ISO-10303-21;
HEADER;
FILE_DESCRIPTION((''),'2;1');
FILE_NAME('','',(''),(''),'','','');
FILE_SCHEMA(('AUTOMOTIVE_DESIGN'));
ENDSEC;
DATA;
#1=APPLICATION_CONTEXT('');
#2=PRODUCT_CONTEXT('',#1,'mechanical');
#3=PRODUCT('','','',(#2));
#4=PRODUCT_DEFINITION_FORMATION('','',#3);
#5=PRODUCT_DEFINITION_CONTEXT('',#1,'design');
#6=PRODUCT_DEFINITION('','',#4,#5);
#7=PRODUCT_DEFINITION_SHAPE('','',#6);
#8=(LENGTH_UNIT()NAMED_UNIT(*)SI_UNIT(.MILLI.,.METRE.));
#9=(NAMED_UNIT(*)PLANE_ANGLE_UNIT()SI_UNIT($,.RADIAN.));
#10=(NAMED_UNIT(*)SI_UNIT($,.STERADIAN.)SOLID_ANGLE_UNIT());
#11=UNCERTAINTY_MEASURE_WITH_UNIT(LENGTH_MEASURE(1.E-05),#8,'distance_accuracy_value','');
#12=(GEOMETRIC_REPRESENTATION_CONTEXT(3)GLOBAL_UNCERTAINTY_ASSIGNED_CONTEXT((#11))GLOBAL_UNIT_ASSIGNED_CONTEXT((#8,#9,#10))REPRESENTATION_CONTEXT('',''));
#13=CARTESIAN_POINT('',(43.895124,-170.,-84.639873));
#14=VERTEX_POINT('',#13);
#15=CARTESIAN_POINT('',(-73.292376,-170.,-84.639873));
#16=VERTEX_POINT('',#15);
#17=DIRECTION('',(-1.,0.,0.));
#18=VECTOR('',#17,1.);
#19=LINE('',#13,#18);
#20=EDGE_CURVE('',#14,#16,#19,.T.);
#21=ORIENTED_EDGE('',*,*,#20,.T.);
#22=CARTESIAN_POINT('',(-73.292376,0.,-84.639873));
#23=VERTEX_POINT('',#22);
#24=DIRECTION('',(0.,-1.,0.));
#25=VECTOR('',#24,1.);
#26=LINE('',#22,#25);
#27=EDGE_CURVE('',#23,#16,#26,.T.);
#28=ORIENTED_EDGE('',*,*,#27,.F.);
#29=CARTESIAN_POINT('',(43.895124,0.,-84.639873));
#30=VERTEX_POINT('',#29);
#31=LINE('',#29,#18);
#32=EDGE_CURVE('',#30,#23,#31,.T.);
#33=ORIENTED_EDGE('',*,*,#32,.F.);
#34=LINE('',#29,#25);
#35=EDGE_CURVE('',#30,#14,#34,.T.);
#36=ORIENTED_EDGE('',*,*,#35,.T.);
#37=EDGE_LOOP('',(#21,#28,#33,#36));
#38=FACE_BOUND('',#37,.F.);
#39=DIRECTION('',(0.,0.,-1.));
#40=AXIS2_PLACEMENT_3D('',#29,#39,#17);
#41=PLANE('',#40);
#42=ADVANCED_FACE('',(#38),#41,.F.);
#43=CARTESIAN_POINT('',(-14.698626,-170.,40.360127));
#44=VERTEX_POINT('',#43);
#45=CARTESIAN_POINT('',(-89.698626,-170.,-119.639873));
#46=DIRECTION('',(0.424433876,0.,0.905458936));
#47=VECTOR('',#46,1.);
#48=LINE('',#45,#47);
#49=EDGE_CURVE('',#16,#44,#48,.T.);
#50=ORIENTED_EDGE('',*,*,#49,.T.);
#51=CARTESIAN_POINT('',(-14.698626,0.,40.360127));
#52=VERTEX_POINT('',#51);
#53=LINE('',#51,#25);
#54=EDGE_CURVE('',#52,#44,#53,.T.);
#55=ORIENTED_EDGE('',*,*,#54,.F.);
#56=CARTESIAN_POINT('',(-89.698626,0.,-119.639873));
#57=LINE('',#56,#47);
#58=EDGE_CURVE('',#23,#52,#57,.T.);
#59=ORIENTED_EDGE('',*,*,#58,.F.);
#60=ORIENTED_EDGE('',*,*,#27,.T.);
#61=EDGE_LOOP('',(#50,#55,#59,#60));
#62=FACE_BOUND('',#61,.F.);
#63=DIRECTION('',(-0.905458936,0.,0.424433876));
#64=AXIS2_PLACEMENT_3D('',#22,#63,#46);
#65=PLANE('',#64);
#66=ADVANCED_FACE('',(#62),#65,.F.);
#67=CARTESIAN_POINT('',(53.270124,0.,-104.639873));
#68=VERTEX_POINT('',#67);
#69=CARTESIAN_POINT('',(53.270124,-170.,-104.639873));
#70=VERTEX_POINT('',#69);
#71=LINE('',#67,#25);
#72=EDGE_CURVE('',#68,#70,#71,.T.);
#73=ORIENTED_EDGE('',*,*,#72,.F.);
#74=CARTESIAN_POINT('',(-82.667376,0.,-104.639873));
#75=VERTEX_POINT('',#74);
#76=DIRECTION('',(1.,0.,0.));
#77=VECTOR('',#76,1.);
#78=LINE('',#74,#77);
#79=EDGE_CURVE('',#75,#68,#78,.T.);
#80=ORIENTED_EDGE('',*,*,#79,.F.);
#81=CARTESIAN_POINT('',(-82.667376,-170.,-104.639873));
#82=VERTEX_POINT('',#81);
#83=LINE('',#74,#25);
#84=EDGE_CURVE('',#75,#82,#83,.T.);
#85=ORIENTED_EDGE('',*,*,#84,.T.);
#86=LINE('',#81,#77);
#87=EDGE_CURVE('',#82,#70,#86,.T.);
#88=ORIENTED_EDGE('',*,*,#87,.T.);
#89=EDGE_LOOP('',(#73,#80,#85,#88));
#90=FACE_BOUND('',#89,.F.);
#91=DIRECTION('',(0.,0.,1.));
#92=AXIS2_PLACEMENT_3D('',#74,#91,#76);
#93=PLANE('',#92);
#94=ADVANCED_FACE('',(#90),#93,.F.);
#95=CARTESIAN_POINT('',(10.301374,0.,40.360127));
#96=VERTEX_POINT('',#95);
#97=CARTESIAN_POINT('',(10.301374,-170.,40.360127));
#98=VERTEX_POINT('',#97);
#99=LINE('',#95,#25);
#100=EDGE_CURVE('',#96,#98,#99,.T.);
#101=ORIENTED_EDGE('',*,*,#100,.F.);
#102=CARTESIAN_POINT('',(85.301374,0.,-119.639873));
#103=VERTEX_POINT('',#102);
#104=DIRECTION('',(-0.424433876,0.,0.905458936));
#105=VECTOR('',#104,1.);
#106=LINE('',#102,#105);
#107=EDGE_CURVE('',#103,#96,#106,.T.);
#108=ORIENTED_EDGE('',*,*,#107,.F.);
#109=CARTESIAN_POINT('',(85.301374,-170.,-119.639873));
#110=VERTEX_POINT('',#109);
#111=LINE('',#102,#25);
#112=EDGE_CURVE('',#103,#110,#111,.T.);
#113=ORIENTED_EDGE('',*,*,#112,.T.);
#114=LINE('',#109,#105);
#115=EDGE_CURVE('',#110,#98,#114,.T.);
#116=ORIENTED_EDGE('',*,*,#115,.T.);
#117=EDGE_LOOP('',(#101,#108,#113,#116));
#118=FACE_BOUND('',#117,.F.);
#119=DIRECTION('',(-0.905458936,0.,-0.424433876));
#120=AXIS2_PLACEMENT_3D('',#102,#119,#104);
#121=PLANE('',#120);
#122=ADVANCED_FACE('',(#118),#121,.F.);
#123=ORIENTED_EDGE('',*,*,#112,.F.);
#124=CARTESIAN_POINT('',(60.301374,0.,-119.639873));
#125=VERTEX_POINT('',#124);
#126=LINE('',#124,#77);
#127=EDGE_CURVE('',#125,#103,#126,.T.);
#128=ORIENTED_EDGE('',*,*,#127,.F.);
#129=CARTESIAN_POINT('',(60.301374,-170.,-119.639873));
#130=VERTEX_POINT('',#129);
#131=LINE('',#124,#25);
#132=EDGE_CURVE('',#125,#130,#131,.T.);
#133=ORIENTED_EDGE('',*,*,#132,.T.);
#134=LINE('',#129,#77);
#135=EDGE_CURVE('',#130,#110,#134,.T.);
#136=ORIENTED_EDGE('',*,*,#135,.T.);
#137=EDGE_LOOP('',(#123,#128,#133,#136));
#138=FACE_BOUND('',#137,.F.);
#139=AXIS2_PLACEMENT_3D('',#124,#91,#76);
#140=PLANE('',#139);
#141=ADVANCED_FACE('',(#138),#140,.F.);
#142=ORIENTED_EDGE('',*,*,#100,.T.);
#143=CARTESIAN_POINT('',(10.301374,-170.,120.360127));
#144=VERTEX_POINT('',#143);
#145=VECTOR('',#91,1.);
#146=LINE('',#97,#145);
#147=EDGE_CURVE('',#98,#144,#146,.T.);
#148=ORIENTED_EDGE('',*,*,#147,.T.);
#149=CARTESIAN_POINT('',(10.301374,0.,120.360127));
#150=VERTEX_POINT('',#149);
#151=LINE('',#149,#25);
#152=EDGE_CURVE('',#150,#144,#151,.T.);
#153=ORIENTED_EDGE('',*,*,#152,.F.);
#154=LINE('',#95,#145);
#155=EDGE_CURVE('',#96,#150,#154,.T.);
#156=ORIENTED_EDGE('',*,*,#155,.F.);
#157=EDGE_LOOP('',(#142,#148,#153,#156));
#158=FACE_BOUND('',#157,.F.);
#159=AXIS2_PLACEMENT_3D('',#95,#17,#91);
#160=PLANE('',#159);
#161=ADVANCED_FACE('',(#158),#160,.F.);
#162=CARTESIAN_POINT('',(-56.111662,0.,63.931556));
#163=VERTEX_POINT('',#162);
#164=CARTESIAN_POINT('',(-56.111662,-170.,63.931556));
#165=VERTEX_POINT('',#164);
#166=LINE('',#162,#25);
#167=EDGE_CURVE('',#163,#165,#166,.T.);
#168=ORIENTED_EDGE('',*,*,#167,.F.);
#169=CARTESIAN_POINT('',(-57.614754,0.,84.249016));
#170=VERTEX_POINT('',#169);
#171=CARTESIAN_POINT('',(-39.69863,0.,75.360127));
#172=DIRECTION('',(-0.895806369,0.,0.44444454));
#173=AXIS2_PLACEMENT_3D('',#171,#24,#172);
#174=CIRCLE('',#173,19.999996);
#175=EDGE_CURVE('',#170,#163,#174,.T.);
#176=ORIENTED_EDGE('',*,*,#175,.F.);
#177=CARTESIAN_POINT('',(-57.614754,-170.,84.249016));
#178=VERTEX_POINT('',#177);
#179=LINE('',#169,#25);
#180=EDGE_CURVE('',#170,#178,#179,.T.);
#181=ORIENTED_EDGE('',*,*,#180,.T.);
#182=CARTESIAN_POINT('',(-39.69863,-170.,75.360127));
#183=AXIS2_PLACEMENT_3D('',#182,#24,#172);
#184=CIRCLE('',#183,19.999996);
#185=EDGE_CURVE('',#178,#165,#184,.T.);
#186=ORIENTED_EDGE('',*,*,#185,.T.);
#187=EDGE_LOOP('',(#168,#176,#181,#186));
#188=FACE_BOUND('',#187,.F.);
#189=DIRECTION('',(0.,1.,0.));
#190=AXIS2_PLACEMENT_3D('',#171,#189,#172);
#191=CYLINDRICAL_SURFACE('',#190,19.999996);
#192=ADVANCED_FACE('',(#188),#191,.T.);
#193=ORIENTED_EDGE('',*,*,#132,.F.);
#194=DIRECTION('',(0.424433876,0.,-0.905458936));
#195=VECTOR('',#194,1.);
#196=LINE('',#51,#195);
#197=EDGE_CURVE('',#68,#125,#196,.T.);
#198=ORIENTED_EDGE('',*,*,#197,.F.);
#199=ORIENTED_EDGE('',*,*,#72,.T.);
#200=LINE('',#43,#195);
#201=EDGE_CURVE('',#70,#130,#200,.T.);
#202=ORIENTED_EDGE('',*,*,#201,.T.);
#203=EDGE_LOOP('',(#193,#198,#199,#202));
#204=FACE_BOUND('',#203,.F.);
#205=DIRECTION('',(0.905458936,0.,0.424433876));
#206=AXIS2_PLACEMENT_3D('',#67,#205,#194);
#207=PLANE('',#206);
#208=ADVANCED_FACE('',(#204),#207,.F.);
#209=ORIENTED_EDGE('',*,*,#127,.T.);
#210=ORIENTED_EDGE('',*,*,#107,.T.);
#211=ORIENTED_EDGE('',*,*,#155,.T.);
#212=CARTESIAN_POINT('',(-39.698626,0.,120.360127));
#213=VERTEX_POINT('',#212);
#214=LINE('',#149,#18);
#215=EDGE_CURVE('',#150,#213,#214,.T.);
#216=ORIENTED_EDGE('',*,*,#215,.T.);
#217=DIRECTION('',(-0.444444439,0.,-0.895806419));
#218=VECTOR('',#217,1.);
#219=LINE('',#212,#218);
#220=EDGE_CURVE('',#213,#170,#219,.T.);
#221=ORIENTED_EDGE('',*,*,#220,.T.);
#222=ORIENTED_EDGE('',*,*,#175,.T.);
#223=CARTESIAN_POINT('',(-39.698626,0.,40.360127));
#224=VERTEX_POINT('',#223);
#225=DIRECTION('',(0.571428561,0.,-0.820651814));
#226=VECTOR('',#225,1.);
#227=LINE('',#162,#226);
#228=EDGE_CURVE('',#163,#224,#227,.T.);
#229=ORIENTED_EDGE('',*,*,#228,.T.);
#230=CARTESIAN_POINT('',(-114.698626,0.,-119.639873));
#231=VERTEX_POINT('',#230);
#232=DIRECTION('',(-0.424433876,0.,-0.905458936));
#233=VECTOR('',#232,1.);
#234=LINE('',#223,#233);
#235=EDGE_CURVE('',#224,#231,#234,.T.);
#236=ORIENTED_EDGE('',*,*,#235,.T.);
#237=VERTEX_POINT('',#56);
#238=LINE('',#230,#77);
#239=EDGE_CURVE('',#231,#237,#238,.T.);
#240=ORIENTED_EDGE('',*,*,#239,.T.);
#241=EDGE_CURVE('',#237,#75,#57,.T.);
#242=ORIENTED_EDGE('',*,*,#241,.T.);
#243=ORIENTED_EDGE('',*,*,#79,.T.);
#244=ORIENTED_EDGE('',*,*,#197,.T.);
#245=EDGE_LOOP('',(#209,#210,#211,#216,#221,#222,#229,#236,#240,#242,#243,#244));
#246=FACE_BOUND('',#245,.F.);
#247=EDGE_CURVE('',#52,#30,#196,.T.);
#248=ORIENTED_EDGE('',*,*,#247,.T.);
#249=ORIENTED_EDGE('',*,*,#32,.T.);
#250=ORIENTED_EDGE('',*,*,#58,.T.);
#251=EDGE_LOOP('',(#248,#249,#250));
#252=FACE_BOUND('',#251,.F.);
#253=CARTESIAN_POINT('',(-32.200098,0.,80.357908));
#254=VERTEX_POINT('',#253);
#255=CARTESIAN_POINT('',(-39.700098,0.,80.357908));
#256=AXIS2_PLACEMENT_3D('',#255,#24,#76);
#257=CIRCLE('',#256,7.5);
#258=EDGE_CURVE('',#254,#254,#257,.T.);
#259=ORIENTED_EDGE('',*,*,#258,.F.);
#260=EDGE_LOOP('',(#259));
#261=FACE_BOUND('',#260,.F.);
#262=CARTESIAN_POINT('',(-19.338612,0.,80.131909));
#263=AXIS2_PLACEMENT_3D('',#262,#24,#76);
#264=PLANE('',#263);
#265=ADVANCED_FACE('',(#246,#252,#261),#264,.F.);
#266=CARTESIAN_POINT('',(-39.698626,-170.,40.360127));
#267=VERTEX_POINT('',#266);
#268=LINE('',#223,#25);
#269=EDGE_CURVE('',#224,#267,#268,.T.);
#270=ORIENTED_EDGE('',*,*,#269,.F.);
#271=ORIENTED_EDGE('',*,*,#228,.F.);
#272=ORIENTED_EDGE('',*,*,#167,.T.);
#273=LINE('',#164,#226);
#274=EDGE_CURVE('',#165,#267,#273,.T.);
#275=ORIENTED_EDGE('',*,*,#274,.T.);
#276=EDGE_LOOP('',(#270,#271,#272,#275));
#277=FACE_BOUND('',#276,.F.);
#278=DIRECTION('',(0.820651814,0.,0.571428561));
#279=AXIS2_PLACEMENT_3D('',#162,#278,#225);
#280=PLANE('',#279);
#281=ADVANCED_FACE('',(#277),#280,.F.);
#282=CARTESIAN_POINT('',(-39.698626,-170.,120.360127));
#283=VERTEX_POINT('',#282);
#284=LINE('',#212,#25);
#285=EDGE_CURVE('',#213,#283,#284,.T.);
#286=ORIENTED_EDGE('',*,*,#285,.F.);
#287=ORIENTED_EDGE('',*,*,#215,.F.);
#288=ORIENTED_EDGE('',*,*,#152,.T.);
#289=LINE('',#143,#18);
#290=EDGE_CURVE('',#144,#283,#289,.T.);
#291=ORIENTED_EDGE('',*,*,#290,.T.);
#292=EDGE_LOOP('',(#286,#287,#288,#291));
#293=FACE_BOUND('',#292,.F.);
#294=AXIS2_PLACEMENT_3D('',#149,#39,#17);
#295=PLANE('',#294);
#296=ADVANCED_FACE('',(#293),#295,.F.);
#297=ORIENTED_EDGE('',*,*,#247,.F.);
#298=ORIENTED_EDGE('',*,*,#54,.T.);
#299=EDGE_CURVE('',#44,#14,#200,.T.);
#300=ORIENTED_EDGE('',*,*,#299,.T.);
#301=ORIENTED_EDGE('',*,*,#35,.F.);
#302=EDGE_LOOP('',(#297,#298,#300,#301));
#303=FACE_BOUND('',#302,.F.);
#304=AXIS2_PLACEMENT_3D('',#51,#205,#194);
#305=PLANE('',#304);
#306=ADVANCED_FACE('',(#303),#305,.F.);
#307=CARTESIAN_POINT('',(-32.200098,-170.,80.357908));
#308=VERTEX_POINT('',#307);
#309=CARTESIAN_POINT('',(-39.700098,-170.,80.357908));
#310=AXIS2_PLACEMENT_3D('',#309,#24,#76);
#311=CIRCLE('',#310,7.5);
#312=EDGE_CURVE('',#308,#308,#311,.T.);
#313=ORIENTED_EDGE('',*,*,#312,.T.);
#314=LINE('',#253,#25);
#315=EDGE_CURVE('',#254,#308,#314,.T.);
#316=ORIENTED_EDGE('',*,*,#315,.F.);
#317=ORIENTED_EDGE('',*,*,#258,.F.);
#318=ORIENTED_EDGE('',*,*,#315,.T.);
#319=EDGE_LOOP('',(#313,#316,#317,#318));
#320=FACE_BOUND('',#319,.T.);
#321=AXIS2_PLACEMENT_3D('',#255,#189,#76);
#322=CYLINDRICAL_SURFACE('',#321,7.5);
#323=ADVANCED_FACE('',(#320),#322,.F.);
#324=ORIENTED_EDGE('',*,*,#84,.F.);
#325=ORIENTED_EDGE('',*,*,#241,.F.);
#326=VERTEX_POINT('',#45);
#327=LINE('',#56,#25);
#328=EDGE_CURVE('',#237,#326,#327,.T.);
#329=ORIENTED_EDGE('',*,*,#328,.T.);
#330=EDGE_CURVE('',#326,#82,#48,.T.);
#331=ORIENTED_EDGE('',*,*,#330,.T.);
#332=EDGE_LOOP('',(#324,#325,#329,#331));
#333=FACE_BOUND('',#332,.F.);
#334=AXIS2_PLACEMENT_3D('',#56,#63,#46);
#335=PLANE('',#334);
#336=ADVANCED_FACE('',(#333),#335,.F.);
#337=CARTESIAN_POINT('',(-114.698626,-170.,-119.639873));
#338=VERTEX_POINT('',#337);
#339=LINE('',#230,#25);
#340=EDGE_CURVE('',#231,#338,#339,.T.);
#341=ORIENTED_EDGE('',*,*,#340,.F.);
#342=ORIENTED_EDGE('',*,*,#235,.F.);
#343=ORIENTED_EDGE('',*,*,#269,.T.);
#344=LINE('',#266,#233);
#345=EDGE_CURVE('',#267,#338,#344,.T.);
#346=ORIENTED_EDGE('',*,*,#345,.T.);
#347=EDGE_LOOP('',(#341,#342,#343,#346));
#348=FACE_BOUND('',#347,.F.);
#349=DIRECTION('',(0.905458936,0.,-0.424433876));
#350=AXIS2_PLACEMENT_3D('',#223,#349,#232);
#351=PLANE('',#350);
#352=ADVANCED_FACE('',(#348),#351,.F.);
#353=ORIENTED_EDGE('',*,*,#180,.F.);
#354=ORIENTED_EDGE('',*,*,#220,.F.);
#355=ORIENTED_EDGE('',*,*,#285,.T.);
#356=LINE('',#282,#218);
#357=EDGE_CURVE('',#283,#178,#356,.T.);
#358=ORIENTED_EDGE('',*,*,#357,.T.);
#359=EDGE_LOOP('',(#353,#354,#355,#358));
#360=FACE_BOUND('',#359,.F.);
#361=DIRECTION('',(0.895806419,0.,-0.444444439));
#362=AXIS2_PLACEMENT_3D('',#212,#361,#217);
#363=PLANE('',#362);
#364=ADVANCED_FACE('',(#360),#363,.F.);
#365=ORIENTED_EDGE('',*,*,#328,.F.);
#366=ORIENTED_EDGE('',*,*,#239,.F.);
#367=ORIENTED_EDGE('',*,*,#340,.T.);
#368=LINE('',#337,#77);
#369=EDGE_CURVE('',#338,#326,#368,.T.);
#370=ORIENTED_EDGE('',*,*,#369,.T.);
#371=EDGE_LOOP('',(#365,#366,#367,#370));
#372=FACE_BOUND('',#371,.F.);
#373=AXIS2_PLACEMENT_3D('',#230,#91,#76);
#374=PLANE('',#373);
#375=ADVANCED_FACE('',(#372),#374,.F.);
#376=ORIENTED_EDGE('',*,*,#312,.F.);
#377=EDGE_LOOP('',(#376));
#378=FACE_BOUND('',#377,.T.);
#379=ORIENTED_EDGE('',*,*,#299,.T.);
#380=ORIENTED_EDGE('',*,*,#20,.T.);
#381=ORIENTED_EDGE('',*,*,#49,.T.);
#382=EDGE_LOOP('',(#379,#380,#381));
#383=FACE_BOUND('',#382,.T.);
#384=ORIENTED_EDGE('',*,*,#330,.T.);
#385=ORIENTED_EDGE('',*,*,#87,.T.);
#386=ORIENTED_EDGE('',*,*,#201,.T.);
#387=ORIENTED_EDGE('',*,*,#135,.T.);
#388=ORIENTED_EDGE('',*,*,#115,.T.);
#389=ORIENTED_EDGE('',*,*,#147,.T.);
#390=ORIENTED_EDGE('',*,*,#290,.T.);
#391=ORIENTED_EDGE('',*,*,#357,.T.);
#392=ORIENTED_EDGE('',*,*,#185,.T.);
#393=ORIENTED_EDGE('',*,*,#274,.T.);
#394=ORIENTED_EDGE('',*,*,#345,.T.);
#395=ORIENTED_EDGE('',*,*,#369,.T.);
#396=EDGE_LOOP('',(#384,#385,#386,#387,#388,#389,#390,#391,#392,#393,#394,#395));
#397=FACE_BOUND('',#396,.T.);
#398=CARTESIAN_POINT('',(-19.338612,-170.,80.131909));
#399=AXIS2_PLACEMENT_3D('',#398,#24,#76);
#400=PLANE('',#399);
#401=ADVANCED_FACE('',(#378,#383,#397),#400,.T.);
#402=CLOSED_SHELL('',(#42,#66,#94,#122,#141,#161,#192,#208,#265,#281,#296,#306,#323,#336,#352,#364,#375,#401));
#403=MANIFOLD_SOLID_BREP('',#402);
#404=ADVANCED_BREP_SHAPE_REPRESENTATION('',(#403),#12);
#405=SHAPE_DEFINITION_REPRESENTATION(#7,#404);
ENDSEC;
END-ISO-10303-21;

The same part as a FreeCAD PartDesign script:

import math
import FreeCAD as App
import Part
import Sketcher

V = App.Vector

doc = App.newDocument("Part")
body = doc.addObject("PartDesign::Body", "Body")

sketch1 = body.newObject("Sketcher::SketchObject", "Sketch")
sketch1.AttachmentSupport = (doc.getObject("XZ_Plane"), [""])
sketch1.MapMode = "FlatFace"
sketch1.addGeometry(Part.LineSegment(V(10, 40, 0), V(10, 120, 0)), False)
sketch1.addGeometry(Part.LineSegment(V(10, 120, 0), V(-40, 120, 0)), False)
sketch1.addGeometry(Part.LineSegment(V(-40, 120, 0), V(-58, 84, 0)), False)
sketch1.addGeometry(Part.ArcOfCircle(Part.Circle(V(-40, 75, 0), V(0, 0, 1), 20), math.radians(154), math.radians(215)), False)
sketch1.addGeometry(Part.LineSegment(V(-56, 64, 0), V(-40, 40, 0)), False)
sketch1.addGeometry(Part.LineSegment(V(-40, 40, 0), V(-115, -120, 0)), False)
sketch1.addGeometry(Part.LineSegment(V(-115, -120, 0), V(-90, -120, 0)), False)
sketch1.addGeometry(Part.LineSegment(V(-90, -120, 0), V(-83, -105, 0)), False)
sketch1.addGeometry(Part.LineSegment(V(-83, -105, 0), V(53, -105, 0)), False)
sketch1.addGeometry(Part.LineSegment(V(53, -105, 0), V(60, -120, 0)), False)
sketch1.addGeometry(Part.LineSegment(V(60, -120, 0), V(85, -120, 0)), False)
sketch1.addGeometry(Part.LineSegment(V(85, -120, 0), V(10, 40, 0)), False)
sketch1.addGeometry(Part.LineSegment(V(-73, -85, 0), V(-15, 40, 0)), False)
sketch1.addGeometry(Part.LineSegment(V(-15, 40, 0), V(44, -85, 0)), False)
sketch1.addGeometry(Part.LineSegment(V(44, -85, 0), V(-73, -85, 0)), False)
sketch1.addGeometry(Part.Circle(V(-40, 80, 0), V(0, 0, 1), 8), False)
sketch1.addConstraint(Sketcher.Constraint("Coincident", 0, 2, 1, 1))
sketch1.addConstraint(Sketcher.Constraint("Coincident", 1, 2, 2, 1))
sketch1.addConstraint(Sketcher.Constraint("Tangent", 2, 2, 3, 1))
sketch1.addConstraint(Sketcher.Constraint("Tangent", 3, 2, 4, 1))
sketch1.addConstraint(Sketcher.Constraint("Coincident", 4, 2, 5, 1))
sketch1.addConstraint(Sketcher.Constraint("Coincident", 5, 2, 6, 1))
sketch1.addConstraint(Sketcher.Constraint("Coincident", 6, 2, 7, 1))
sketch1.addConstraint(Sketcher.Constraint("Coincident", 7, 2, 8, 1))
sketch1.addConstraint(Sketcher.Constraint("Coincident", 8, 2, 9, 1))
sketch1.addConstraint(Sketcher.Constraint("Coincident", 9, 2, 10, 1))
sketch1.addConstraint(Sketcher.Constraint("Coincident", 10, 2, 11, 1))
sketch1.addConstraint(Sketcher.Constraint("Coincident", 11, 2, 0, 1))
sketch1.addConstraint(Sketcher.Constraint("Coincident", 12, 2, 13, 1))
sketch1.addConstraint(Sketcher.Constraint("Coincident", 13, 2, 14, 1))
sketch1.addConstraint(Sketcher.Constraint("Coincident", 14, 2, 12, 1))
sketch1.addConstraint(Sketcher.Constraint("Vertical", 0))
sketch1.addConstraint(Sketcher.Constraint("Horizontal", 1))
sketch1.addConstraint(Sketcher.Constraint("Horizontal", 6))
sketch1.addConstraint(Sketcher.Constraint("Horizontal", 8))
sketch1.addConstraint(Sketcher.Constraint("Horizontal", 10))
sketch1.addConstraint(Sketcher.Constraint("Horizontal", 14))
sketch1.addConstraint(Sketcher.Constraint("Parallel", 5, 7))
sketch1.addConstraint(Sketcher.Constraint("Parallel", 9, 11))
sketch1.addConstraint(Sketcher.Constraint("Parallel", 7, 12))
sketch1.addConstraint(Sketcher.Constraint("Parallel", 11, 13))
sketch1.addConstraint(Sketcher.Constraint("Horizontal", 6, 2, 9, 2))
sketch1.addConstraint(Sketcher.Constraint("Horizontal", 4, 2, 11, 2))
sketch1.addConstraint(Sketcher.Constraint("Horizontal", 11, 2, 12, 2))
sketch1.addConstraint(Sketcher.Constraint("Vertical", 1, 2, 4, 2))
sketch1.addConstraint(Sketcher.Constraint("Equal", 6, 10))
sketch1.addConstraint(Sketcher.Constraint("Equal", 7, 9))
sketch1.addConstraint(Sketcher.Constraint("Diameter", 15, 15.0))
sketch1.addConstraint(Sketcher.Constraint("DistanceX", 1, 2, 1, 1, 50.0))
sketch1.addConstraint(Sketcher.Constraint("DistanceX", 6, 1, 6, 2, 25.0))
sketch1.addConstraint(Sketcher.Constraint("DistanceY", 0, 1, 0, 2, 80.0))
sketch1.addConstraint(Sketcher.Constraint("DistanceY", 3, 3, 0, 2, 45.0))
sketch1.addConstraint(Sketcher.Constraint("DistanceX", 5, 2, 4, 2, 75.0))
sketch1.addConstraint(Sketcher.Constraint("DistanceY", 5, 2, 4, 2, 160.0))
sketch1.addConstraint(Sketcher.Constraint("DistanceY", 6, 2, 7, 2, 15.0))
sketch1.addConstraint(Sketcher.Constraint("DistanceX", 4, 2, 12, 2, 25.0))
sketch1.addConstraint(Sketcher.Constraint("DistanceY", 8, 2, 13, 2, 20.0))
sketch1.addConstraint(Sketcher.Constraint("Radius", 3, 19.999996))
sketch1.addConstraint(Sketcher.Constraint("DistanceX", 3, 3, -1, 1, 39.69863))
sketch1.addConstraint(Sketcher.Constraint("DistanceX", 3, 2, -1, 1, 56.111662))
sketch1.addConstraint(Sketcher.Constraint("DistanceX", 15, 3, 3, 3, 0.001468))
sketch1.addConstraint(Sketcher.Constraint("DistanceY", 3, 3, 15, 3, 4.997781))
sketch1.addConstraint(Sketcher.Constraint("DistanceY", -1, 1, 3, 3, 75.360127))
pad1 = body.newObject("PartDesign::Pad", "Pad")
pad1.Profile = sketch1
pad1.Length = 170

doc.recompute()
